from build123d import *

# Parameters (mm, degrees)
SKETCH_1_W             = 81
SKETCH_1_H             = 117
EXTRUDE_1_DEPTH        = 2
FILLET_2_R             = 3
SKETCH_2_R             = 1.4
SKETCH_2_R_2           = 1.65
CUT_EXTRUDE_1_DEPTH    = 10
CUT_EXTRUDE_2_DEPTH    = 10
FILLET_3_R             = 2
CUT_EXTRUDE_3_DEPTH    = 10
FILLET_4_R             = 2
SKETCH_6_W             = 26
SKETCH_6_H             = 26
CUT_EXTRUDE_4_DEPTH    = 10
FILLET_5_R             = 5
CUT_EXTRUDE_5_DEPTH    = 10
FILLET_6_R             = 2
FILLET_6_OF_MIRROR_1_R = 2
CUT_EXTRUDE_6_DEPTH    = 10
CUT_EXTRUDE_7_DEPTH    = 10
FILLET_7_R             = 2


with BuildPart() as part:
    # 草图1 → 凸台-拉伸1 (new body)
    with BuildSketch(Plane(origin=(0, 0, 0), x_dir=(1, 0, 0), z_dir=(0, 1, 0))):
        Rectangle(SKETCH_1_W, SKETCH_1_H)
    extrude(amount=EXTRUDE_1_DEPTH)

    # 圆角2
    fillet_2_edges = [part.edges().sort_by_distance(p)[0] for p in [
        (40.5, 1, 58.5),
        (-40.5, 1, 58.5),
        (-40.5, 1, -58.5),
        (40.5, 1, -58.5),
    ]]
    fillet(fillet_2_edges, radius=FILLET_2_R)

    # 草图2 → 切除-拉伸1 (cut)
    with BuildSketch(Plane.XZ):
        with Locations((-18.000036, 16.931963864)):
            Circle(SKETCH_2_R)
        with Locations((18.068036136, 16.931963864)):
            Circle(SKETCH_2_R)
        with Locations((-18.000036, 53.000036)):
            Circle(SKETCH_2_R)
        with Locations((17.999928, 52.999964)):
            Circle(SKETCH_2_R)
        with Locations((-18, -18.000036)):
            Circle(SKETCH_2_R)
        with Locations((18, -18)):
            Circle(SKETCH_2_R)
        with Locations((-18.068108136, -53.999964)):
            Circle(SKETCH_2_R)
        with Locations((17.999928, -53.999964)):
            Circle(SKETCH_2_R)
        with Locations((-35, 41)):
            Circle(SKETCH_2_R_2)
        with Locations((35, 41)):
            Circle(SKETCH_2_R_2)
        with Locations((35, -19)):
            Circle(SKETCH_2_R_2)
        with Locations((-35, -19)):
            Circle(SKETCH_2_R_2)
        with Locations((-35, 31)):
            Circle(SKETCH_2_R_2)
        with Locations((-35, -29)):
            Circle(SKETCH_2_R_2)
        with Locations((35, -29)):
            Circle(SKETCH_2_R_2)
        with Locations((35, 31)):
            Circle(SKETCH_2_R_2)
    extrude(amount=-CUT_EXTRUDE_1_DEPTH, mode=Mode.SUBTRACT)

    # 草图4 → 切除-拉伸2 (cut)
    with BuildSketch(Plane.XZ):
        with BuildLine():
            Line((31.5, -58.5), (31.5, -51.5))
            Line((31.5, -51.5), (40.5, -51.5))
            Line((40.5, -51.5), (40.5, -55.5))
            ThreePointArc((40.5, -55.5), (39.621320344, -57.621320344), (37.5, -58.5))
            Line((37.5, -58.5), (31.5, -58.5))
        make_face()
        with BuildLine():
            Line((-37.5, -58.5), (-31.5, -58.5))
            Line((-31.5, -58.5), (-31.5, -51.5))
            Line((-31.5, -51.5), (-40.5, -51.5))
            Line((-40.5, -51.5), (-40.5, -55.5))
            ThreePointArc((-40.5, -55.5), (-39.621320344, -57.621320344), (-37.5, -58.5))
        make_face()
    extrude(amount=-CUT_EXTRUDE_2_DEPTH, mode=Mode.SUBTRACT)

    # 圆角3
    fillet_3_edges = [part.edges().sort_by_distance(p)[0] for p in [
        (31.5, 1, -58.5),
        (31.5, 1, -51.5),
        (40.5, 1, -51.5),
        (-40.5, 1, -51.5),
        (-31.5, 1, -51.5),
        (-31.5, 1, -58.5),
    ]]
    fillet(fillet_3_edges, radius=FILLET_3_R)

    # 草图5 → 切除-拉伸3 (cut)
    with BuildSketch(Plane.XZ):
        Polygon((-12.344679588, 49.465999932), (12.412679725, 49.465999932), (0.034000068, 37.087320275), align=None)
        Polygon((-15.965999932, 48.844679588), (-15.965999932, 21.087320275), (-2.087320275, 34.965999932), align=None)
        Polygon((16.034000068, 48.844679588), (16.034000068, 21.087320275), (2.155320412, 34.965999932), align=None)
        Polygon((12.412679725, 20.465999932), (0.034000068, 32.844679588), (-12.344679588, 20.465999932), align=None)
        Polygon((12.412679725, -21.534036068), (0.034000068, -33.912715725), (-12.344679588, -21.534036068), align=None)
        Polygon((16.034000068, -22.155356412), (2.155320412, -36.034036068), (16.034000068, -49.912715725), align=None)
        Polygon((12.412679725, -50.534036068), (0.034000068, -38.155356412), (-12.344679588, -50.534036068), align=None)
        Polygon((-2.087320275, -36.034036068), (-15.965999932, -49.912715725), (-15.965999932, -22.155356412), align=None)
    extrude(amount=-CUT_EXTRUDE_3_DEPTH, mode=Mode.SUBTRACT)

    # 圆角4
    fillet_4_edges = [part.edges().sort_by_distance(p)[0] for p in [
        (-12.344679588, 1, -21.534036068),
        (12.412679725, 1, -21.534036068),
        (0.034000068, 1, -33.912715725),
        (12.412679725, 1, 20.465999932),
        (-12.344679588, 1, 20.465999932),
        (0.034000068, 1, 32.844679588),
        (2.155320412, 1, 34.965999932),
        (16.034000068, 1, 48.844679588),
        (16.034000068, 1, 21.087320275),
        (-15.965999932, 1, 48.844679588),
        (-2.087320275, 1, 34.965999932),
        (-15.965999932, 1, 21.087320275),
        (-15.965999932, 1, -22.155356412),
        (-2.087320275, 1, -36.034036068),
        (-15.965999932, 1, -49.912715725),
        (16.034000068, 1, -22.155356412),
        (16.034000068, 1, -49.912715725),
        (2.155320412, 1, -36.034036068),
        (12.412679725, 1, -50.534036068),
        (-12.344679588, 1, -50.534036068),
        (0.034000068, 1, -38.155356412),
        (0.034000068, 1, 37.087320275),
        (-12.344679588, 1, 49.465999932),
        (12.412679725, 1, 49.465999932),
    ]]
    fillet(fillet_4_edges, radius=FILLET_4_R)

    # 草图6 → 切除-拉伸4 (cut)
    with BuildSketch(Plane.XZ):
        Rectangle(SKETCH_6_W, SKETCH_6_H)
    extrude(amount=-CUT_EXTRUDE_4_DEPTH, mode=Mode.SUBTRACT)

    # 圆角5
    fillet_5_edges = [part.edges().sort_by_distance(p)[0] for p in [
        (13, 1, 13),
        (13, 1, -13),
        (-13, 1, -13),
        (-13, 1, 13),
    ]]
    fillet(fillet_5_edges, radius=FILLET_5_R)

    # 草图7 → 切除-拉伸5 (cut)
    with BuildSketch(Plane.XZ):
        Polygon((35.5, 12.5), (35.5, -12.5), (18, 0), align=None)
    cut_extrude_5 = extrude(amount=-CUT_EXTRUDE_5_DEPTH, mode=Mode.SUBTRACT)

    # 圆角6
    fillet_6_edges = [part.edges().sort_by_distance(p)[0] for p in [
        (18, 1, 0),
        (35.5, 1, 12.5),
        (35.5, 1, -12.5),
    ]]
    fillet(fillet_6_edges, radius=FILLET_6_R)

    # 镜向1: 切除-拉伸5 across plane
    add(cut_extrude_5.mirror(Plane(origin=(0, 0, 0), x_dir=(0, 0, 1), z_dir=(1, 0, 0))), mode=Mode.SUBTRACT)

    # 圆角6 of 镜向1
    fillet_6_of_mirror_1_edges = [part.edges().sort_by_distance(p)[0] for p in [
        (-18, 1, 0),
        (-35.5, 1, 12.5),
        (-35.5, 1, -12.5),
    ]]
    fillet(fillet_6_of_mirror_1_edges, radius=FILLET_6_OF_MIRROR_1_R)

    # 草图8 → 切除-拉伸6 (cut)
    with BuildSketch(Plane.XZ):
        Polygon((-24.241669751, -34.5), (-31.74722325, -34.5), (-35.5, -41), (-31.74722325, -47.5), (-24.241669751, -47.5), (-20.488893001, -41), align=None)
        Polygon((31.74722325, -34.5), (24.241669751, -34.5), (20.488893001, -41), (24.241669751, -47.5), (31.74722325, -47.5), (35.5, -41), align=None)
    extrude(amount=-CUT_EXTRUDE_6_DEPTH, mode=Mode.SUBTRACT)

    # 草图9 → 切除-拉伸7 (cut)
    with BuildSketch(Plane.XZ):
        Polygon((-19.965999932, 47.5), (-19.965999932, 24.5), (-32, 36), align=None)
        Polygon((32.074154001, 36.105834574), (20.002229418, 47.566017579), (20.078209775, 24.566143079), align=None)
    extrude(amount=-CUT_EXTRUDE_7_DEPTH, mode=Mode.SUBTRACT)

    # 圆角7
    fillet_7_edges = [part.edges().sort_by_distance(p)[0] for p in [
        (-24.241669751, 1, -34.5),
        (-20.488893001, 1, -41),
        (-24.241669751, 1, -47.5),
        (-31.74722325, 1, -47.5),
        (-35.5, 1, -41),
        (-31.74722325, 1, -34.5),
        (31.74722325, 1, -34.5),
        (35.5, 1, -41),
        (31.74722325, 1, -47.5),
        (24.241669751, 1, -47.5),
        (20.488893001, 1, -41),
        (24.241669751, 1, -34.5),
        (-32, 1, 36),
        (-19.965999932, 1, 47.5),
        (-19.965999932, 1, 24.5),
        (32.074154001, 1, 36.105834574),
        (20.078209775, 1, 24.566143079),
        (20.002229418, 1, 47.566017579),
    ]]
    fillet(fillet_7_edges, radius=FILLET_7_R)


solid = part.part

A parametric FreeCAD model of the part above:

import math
import FreeCAD as App
import Part
import Sketcher
Q = App.Units.Quantity


def edges_at(feature, points):
    """Names of the edges that pass closest to the given points."""
    edges = feature.Shape.Edges
    near = lambda p: min(range(len(edges)), key=lambda i: edges[i].distToShape(Part.Vertex(*p))[0])
    return sorted({f"Edge{near(p) + 1}" for p in points})


def add_polygon(sketch, points):
    """Adds a closed chain of lines whose ends are joined by coincident constraints."""
    first, n = sketch.GeometryCount, len(points)
    for a, b in zip(points, points[1:] + points[:1]):
        sketch.addGeometry(Part.LineSegment(App.Vector(*a, 0), App.Vector(*b, 0)), False)
    for i in range(n):
        sketch.addConstraint(Sketcher.Constraint("Coincident", first + i, 2, first + (i + 1) % n, 1))

doc = App.newDocument("Part")
body = doc.addObject("PartDesign::Body", "Body")

sketch1 = body.newObject("Sketcher::SketchObject", "Sketch")
sketch1.AttachmentSupport = (doc.getObject("XZ_Plane"), [""])
sketch1.MapMode = "FlatFace"
add_polygon(sketch1, [(-40, -58), (-40, 58), (40, 58), (40, -58)])
sketch1.addConstraint(Sketcher.Constraint("Vertical", 0))
sketch1.addConstraint(Sketcher.Constraint("Horizontal", 1))
sketch1.addConstraint(Sketcher.Constraint("Vertical", 2))
sketch1.addConstraint(Sketcher.Constraint("Horizontal", 3))
sketch1.addConstraint(Sketcher.Constraint("Symmetric", 0, 2, 2, 2, -1, 1))
sketch1.addConstraint(Sketcher.Constraint("DistanceX", 1, 1, 1, 2, Q("81 mm")))
sketch1.addConstraint(Sketcher.Constraint("DistanceY", 0, 1, 0, 2, Q("117 mm")))
pad1 = body.newObject("PartDesign::Pad", "Pad")
pad1.Profile = sketch1
pad1.Length = 2
pad1.Reversed = True
doc.recompute()

fillet = body.newObject("PartDesign::Fillet", "Fillet")
fillet.Base = (pad1, edges_at(pad1, [
    (40.5, 1, 58.5),
    (-40.5, 1, 58.5),
    (-40.5, 1, -58.5),
    (40.5, 1, -58.5),
]))
fillet.Radius = 3

sketch2 = body.newObject("Sketcher::SketchObject", "Sketch001")
sketch2.AttachmentSupport = (doc.getObject("XZ_Plane"), [""])
sketch2.MapMode = "FlatFace"
sketch2.addGeometry(Part.Circle(App.Vector(-18.000036, 16.931964, 0), App.Vector(0, 0, 1), 1.4), False)
sketch2.addGeometry(Part.Circle(App.Vector(18.068036, 16.931964, 0), App.Vector(0, 0, 1), 1.4), False)
sketch2.addGeometry(Part.Circle(App.Vector(-18.000036, 53.000036, 0), App.Vector(0, 0, 1), 1.4), False)
sketch2.addGeometry(Part.Circle(App.Vector(17.999928, 52.999964, 0), App.Vector(0, 0, 1), 1.4), False)
sketch2.addGeometry(Part.Circle(App.Vector(-18, -18.000036, 0), App.Vector(0, 0, 1), 1.4), False)
sketch2.addGeometry(Part.Circle(App.Vector(18, -18, 0), App.Vector(0, 0, 1), 1.4), False)
sketch2.addGeometry(Part.Circle(App.Vector(-18.068108, -53.999964, 0), App.Vector(0, 0, 1), 1.4), False)
sketch2.addGeometry(Part.Circle(App.Vector(17.999928, -53.999964, 0), App.Vector(0, 0, 1), 1.4), False)
sketch2.addGeometry(Part.Circle(App.Vector(-35, 41, 0), App.Vector(0, 0, 1), 1.65), False)
sketch2.addGeometry(Part.Circle(App.Vector(35, 41, 0), App.Vector(0, 0, 1), 1.65), False)
sketch2.addGeometry(Part.Circle(App.Vector(35, -19, 0), App.Vector(0, 0, 1), 1.65), False)
sketch2.addGeometry(Part.Circle(App.Vector(-35, -19, 0), App.Vector(0, 0, 1), 1.65), False)
sketch2.addGeometry(Part.Circle(App.Vector(-35, 31, 0), App.Vector(0, 0, 1), 1.65), False)
sketch2.addGeometry(Part.Circle(App.Vector(-35, -29, 0), App.Vector(0, 0, 1), 1.65), False)
sketch2.addGeometry(Part.Circle(App.Vector(35, -29, 0), App.Vector(0, 0, 1), 1.65), False)
sketch2.addGeometry(Part.Circle(App.Vector(35, 31, 0), App.Vector(0, 0, 1), 1.65), False)
sketch2.addConstraint(Sketcher.Constraint("Equal", 0, 1))
sketch2.addConstraint(Sketcher.Constraint("Equal", 1, 2))
sketch2.addConstraint(Sketcher.Constraint("Equal", 2, 3))
sketch2.addConstraint(Sketcher.Constraint("Equal", 3, 4))
sketch2.addConstraint(Sketcher.Constraint("Equal", 4, 5))
sketch2.addConstraint(Sketcher.Constraint("Equal", 5, 6))
sketch2.addConstraint(Sketcher.Constraint("Equal", 6, 7))
sketch2.addConstraint(Sketcher.Constraint("Equal", 8, 9))
sketch2.addConstraint(Sketcher.Constraint("Equal", 9, 10))
sketch2.addConstraint(Sketcher.Constraint("Equal", 10, 11))
sketch2.addConstraint(Sketcher.Constraint("Equal", 11, 12))
sketch2.addConstraint(Sketcher.Constraint("Equal", 12, 13))
sketch2.addConstraint(Sketcher.Constraint("Equal", 13, 14))
sketch2.addConstraint(Sketcher.Constraint("Equal", 14, 15))
sketch2.addConstraint(Sketcher.Constraint("Symmetric", 8, 3, 9, 3, -2))
sketch2.addConstraint(Sketcher.Constraint("Symmetric", 10, 3, 11, 3, -2))
sketch2.addConstraint(Sketcher.Constraint("Symmetric", 13, 3, 14, 3, -2))
sketch2.addConstraint(Sketcher.Constraint("Symmetric", 12, 3, 15, 3, -2))
sketch2.addConstraint(Sketcher.Constraint("Horizontal", 0, 3, 1, 3))
sketch2.addConstraint(Sketcher.Constraint("Horizontal", 6, 3, 7, 3))
sketch2.addConstraint(Sketcher.Constraint("Vertical", 0, 3, 2, 3))
sketch2.addConstraint(Sketcher.Constraint("Vertical", 3, 3, 7, 3))
sketch2.addConstraint(Sketcher.Constraint("Vertical", 9, 3, 10, 3))
sketch2.addConstraint(Sketcher.Constraint("Vertical", 11, 3, 12, 3))
sketch2.addConstraint(Sketcher.Constraint("Vertical", 12, 3, 13, 3))
sketch2.addConstraint(Sketcher.Constraint("Diameter", 0, Q("2.8 mm")))
sketch2.addConstraint(Sketcher.Constraint("Diameter", 8, Q("3.3 mm")))
sketch2.addConstraint(Sketcher.Constraint("DistanceX", 4, 3, -1, 1, Q("18 mm")))
sketch2.addConstraint(Sketcher.Constraint("DistanceX", -1, 1, 5, 3, Q("18 mm")))
sketch2.addConstraint(Sketcher.Constraint("DistanceY", 5, 3, -1, 1, Q("18 mm")))
sketch2.addConstraint(Sketcher.Constraint("DistanceX", 8, 3, -1, 1, Q("35 mm")))
sketch2.addConstraint(Sketcher.Constraint("DistanceY", -1, 1, 8, 3, Q("41 mm")))
sketch2.addConstraint(Sketcher.Constraint("DistanceY", 10, 3, -1, 1, Q("19 mm")))
sketch2.addConstraint(Sketcher.Constraint("DistanceY", -1, 1, 12, 3, Q("31 mm")))
sketch2.addConstraint(Sketcher.Constraint("DistanceY", 13, 3, -1, 1, Q("29 mm")))
sketch2.addConstraint(Sketcher.Constraint("DistanceY", 4, 3, 3, 3, Q("71 mm")))
sketch2.addConstraint(Sketcher.Constraint("DistanceY", 6, 3, 2, 3, Q("107 mm")))
sketch2.addConstraint(Sketcher.Constraint("DistanceY", 1, 3, 3, 3, Q("36.068 mm")))
sketch2.addConstraint(Sketcher.Constraint("DistanceX", -1, 1, 3, 3, Q("17.999928 mm")))
sketch2.addConstraint(Sketcher.Constraint("DistanceX", 6, 3, -1, 1, Q("18.068108 mm")))
sketch2.addConstraint(Sketcher.Constraint("DistanceX", 3, 3, 1, 3, Q("0.068108 mm")))
sketch2.addConstraint(Sketcher.Constraint("DistanceX", 0, 3, -1, 1, Q("18.000036 mm")))
sketch2.addConstraint(Sketcher.Constraint("DistanceY", -1, 1, 0, 3, Q("16.931964 mm")))
sketch2.addConstraint(Sketcher.Constraint("DistanceY", -1, 1, 2, 3, Q("53.000036 mm")))
pocket1 = body.newObject("PartDesign::Pocket", "Pocket")
pocket1.Profile = sketch2
pocket1.Length = 10

sketch3 = body.newObject("Sketcher::SketchObject", "Sketch002")
sketch3.AttachmentSupport = (doc.getObject("XZ_Plane"), [""])
sketch3.MapMode = "FlatFace"
sketch3.addGeometry(Part.LineSegment(App.Vector(31.5, -51.5, 0), App.Vector(31.5, -58.5, 0)), False)
sketch3.addGeometry(Part.LineSegment(App.Vector(31.5, -58.5, 0), App.Vector(37.5, -58.5, 0)), False)
sketch3.addGeometry(Part.ArcOfCircle(Part.Circle(App.Vector(37.5, -55.5, 0), App.Vector(0, 0, 1), 3), math.radians(-90), math.radians(0)), False)
sketch3.addGeometry(Part.LineSegment(App.Vector(40.5, -55.5, 0), App.Vector(40.5, -51.5, 0)), False)
sketch3.addGeometry(Part.LineSegment(App.Vector(40.5, -51.5, 0), App.Vector(31.5, -51.5, 0)), False)
sketch3.addGeometry(Part.LineSegment(App.Vector(-37.5, -58.5, 0), App.Vector(-31.5, -58.5, 0)), False)
sketch3.addGeometry(Part.LineSegment(App.Vector(-31.5, -58.5, 0), App.Vector(-31.5, -51.5, 0)), False)
sketch3.addGeometry(Part.LineSegment(App.Vector(-31.5, -51.5, 0), App.Vector(-40.5, -51.5, 0)), False)
sketch3.addGeometry(Part.LineSegment(App.Vector(-40.5, -51.5, 0), App.Vector(-40.5, -55.5, 0)), False)
sketch3.addGeometry(Part.ArcOfCircle(Part.Circle(App.Vector(-37.5, -55.5, 0), App.Vector(0, 0, 1), 3), math.radians(180), math.radians(270)), False)
sketch3.addConstraint(Sketcher.Constraint("Coincident", 0, 2, 1, 1))
sketch3.addConstraint(Sketcher.Constraint("Tangent", 1, 2, 2, 1))
sketch3.addConstraint(Sketcher.Constraint("Tangent", 2, 2, 3, 1))
sketch3.addConstraint(Sketcher.Constraint("Coincident", 3, 2, 4, 1))
sketch3.addConstraint(Sketcher.Constraint("Coincident", 4, 2, 0, 1))
sketch3.addConstraint(Sketcher.Constraint("Coincident", 5, 2, 6, 1))
sketch3.addConstraint(Sketcher.Constraint("Coincident", 6, 2, 7, 1))
sketch3.addConstraint(Sketcher.Constraint("Coincident", 7, 2, 8, 1))
sketch3.addConstraint(Sketcher.Constraint("Tangent", 8, 2, 9, 1))
sketch3.addConstraint(Sketcher.Constraint("Tangent", 9, 2, 5, 1))
sketch3.addConstraint(Sketcher.Constraint("Vertical", 0))
sketch3.addConstraint(Sketcher.Constraint("Horizontal", 1))
sketch3.addConstraint(Sketcher.Constraint("Vertical", 3))
sketch3.addConstraint(Sketcher.Constraint("Horizontal", 4))
sketch3.addConstraint(Sketcher.Constraint("Horizontal", 5))
sketch3.addConstraint(Sketcher.Constraint("Vertical", 6))
sketch3.addConstraint(Sketcher.Constraint("Horizontal", 7))
sketch3.addConstraint(Sketcher.Constraint("Vertical", 8))
sketch3.addConstraint(Sketcher.Constraint("Equal", 2, 9))
sketch3.addConstraint(Sketcher.Constraint("Symmetric", 2, 3, 9, 3, -2))
sketch3.addConstraint(Sketcher.Constraint("Symmetric", 4, 2, 6, 2, -2))
sketch3.addConstraint(Sketcher.Constraint("Radius", 2, Q("3 mm")))
sketch3.addConstraint(Sketcher.Constraint("DistanceX", 1, 1, 1, 2, Q("6 mm")))
sketch3.addConstraint(Sketcher.Constraint("DistanceY", 0, 2, 0, 1, Q("7 mm")))
sketch3.addConstraint(Sketcher.Constraint("DistanceX", 9, 3, 2, 3, Q("75 mm")))
sketch3.addConstraint(Sketcher.Constraint("DistanceY", 2, 3, -1, 1, Q("55.5 mm")))
pocket2 = body.newObject("PartDesign::Pocket", "Pocket001")
pocket2.Profile = sketch3
pocket2.Length = 10
doc.recompute()

fillet2 = body.newObject("PartDesign::Fillet", "Fillet001")
fillet2.Base = (pocket2, edges_at(pocket2, [
    (31.5, 1, -58.5),
    (31.5, 1, -51.5),
    (40.5, 1, -51.5),
    (-40.5, 1, -51.5),
    (-31.5, 1, -51.5),
    (-31.5, 1, -58.5),
]))
fillet2.Radius = 2

sketch4 = body.newObject("Sketcher::SketchObject", "Sketch003")
sketch4.AttachmentSupport = (doc.getObject("XZ_Plane"), [""])
sketch4.MapMode = "FlatFace"
add_polygon(sketch4, [(12, 49), (-12, 49), (0, 37)])
add_polygon(sketch4, [(-16, 49), (-16, 21), (-2, 35)])
add_polygon(sketch4, [(16, 21), (16, 49), (2, 35)])
add_polygon(sketch4, [(12, 20), (0, 33), (-12, 20)])
add_polygon(sketch4, [(0, -34), (12, -22), (-12, -22)])
add_polygon(sketch4, [(16, -22), (2, -36), (16, -50)])
add_polygon(sketch4, [(12, -51), (0, -38), (-12, -51)])
add_polygon(sketch4, [(-16, -50), (-2, -36), (-16, -22)])
sketch4.addConstraint(Sketcher.Constraint("Horizontal", 0))
sketch4.addConstraint(Sketcher.Constraint("Vertical", 3))
sketch4.addConstraint(Sketcher.Constraint("Vertical", 6))
sketch4.addConstraint(Sketcher.Constraint("Horizontal", 11))
sketch4.addConstraint(Sketcher.Constraint("Horizontal", 13))
sketch4.addConstraint(Sketcher.Constraint("Vertical", 17))
sketch4.addConstraint(Sketcher.Constraint("Horizontal", 20))
sketch4.addConstraint(Sketcher.Constraint("Vertical", 23))
sketch4.addConstraint(Sketcher.Constraint("Perpendicular", 1, 2))
sketch4.addConstraint(Sketcher.Constraint("Parallel", 2, 4))
sketch4.addConstraint(Sketcher.Constraint("Perpendicular", 4, 5))
sketch4.addConstraint(Sketcher.Constraint("Perpendicular", 5, 7))
sketch4.addConstraint(Sketcher.Constraint("Perpendicular", 7, 8))
sketch4.addConstraint(Sketcher.Constraint("Parallel", 8, 9))
sketch4.addConstraint(Sketcher.Constraint("Perpendicular", 9, 10))
sketch4.addConstraint(Sketcher.Constraint("Parallel", 10, 12))
sketch4.addConstraint(Sketcher.Constraint("Perpendicular", 12, 14))
sketch4.addConstraint(Sketcher.Constraint("Perpendicular", 14, 15))
sketch4.addConstraint(Sketcher.Constraint("Perpendicular", 15, 16))
sketch4.addConstraint(Sketcher.Constraint("Parallel", 16, 18))
sketch4.addConstraint(Sketcher.Constraint("Perpendicular", 18, 19))
sketch4.addConstraint(Sketcher.Constraint("Parallel", 19, 21))
sketch4.addConstraint(Sketcher.Constraint("Perpendicular", 21, 22))
sketch4.addConstraint(Sketcher.Constraint("Horizontal", 5, 2, 6, 2))
sketch4.addConstraint(Sketcher.Constraint("Horizontal", 4, 2, 7, 2))
sketch4.addConstraint(Sketcher.Constraint("Horizontal", 3, 2, 8, 2))
sketch4.addConstraint(Sketcher.Constraint("Horizontal", 15, 2, 21, 2))
sketch4.addConstraint(Sketcher.Constraint("Horizontal", 17, 2, 22, 2))
sketch4.addConstraint(Sketcher.Constraint("Vertical", 1, 2, 9, 2))
sketch4.addConstraint(Sketcher.Constraint("Vertical", 0, 2, 10, 2))
sketch4.addConstraint(Sketcher.Constraint("Vertical", 11, 2, 12, 2))
sketch4.addConstraint(Sketcher.Constraint("Vertical", 10, 2, 13, 2))
sketch4.addConstraint(Sketcher.Constraint("Vertical", 7, 2, 15, 2))
sketch4.addConstraint(Sketcher.Constraint("Vertical", 8, 2, 16, 2))
sketch4.addConstraint(Sketcher.Constraint("Vertical", 14, 2, 18, 2))
sketch4.addConstraint(Sketcher.Constraint("Vertical", 13, 2, 19, 2))
sketch4.addConstraint(Sketcher.Constraint("Vertical", 4, 2, 21, 2))
sketch4.addConstraint(Sketcher.Constraint("DistanceX", 3, 2, 1, 2, Q("16 mm")))
sketch4.addConstraint(Sketcher.Constraint("DistanceY", 3, 2, 1, 2, Q("16 mm")))
sketch4.addConstraint(Sketcher.Constraint("DistanceX", 1, 2, 6, 2, Q("16 mm")))
sketch4.addConstraint(Sketcher.Constraint("DistanceY", 16, 2, 14, 2, Q("16 mm")))
sketch4.addConstraint(Sketcher.Constraint("DistanceY", 19, 2, 13, 2, Q("29 mm")))
sketch4.addConstraint(Sketcher.Constraint("DistanceY", 18, 2, 22, 2, Q("16 mm")))
sketch4.addConstraint(Sketcher.Constraint("DistanceY", 10, 2, 4, 2, Q("14.5 mm")))
sketch4.addConstraint(Sketcher.Constraint("DistanceY", -1, 1, 0, 2, Q("49.466 mm")))
sketch4.addConstraint(Sketcher.Constraint("DistanceX", -1, 1, 1, 2, Q("0.034 mm")))
sketch4.addConstraint(Sketcher.Constraint("DistanceX", 0, 2, 0, 1, Q("24.757359 mm")))
sketch4.addConstraint(Sketcher.Constraint("DistanceY", 12, 2, -1, 1, Q("21.534036 mm")))
pocket3 = body.newObject("PartDesign::Pocket", "Pocket002")
pocket3.Profile = sketch4
pocket3.Length = 10
doc.recompute()

fillet3 = body.newObject("PartDesign::Fillet", "Fillet002")
fillet3.Base = (pocket3, edges_at(pocket3, [
    (-12.345, 1, -21.534),
    (12.413, 1, -21.534),
    (0.034, 1, -33.913),
    (12.413, 1, 20.466),
    (-12.345, 1, 20.466),
    (0.034, 1, 32.845),
    (2.155, 1, 34.966),
    (16.034, 1, 48.845),
    (16.034, 1, 21.087),
    (-15.966, 1, 48.845),
    (-2.087, 1, 34.966),
    (-15.966, 1, 21.087),
    (-15.966, 1, -22.155),
    (-2.087, 1, -36.034),
    (-15.966, 1, -49.913),
    (16.034, 1, -22.155),
    (16.034, 1, -49.913),
    (2.155, 1, -36.034),
    (12.413, 1, -50.534),
    (-12.345, 1, -50.534),
    (0.034, 1, -38.155),
    (0.034, 1, 37.087),
    (-12.345, 1, 49.466),
    (12.413, 1, 49.466),
]))
fillet3.Radius = 2

sketch5 = body.newObject("Sketcher::SketchObject", "Sketch004")
sketch5.AttachmentSupport = (doc.getObject("XZ_Plane"), [""])
sketch5.MapMode = "FlatFace"
add_polygon(sketch5, [(-13, 13), (-13, -13), (13, -13), (13, 13)])
sketch5.addConstraint(Sketcher.Constraint("Vertical", 0))
sketch5.addConstraint(Sketcher.Constraint("Horizontal", 1))
sketch5.addConstraint(Sketcher.Constraint("Vertical", 2))
sketch5.addConstraint(Sketcher.Constraint("Horizontal", 3))
sketch5.addConstraint(Sketcher.Constraint("Symmetric", 0, 2, 2, 2, -1, 1))
sketch5.addConstraint(Sketcher.Constraint("Equal", 3, 0))
sketch5.addConstraint(Sketcher.Constraint("DistanceX", 1, 1, 1, 2, Q("26 mm")))
pocket4 = body.newObject("PartDesign::Pocket", "Pocket003")
pocket4.Profile = sketch5
pocket4.Length = 10
doc.recompute()

fillet4 = body.newObject("PartDesign::Fillet", "Fillet003")
fillet4.Base = (pocket4, edges_at(pocket4, [
    (13, 1, 13),
    (13, 1, -13),
    (-13, 1, -13),
    (-13, 1, 13),
]))
fillet4.Radius = 5

sketch6 = body.newObject("Sketcher::SketchObject", "Sketch005")
sketch6.AttachmentSupport = (doc.getObject("XZ_Plane"), [""])
sketch6.MapMode = "FlatFace"
add_polygon(sketch6, [(36, -12), (36, 12), (18, 0)])
sketch6.addConstraint(Sketcher.Constraint("Vertical", 0))
sketch6.addConstraint(Sketcher.Constraint("PointOnObject", 1, 2, -1))
sketch6.addConstraint(Sketcher.Constraint("Equal", 1, 2))
sketch6.addConstraint(Sketcher.Constraint("DistanceY", 0, 1, 0, 2, Q("25 mm")))
sketch6.addConstraint(Sketcher.Constraint("DistanceX", -1, 1, 1, 2, Q("18 mm")))
sketch6.addConstraint(Sketcher.Constraint("DistanceX", -1, 1, 0, 2, Q("35.5 mm")))
pocket5 = body.newObject("PartDesign::Pocket", "Pocket004")
pocket5.Profile = sketch6
pocket5.Length = 10
doc.recompute()

fillet5 = body.newObject("PartDesign::Fillet", "Fillet004")
fillet5.Base = (pocket5, edges_at(pocket5, [(18, 1, 0), (35.5, 1, 12.5), (35.5, 1, -12.5)]))
fillet5.Radius = 2
doc.recompute()

mirrored = body.newObject("PartDesign::Mirrored", "Mirrored")
mirrored.Originals = [pocket5]
mirrored.MirrorPlane = (doc.getObject("YZ_Plane"), [""])
body.Tip = mirrored
doc.recompute()

fillet6 = body.newObject("PartDesign::Fillet", "Fillet005")
fillet6.Base = (mirrored, edges_at(mirrored, [(-18, 1, 0), (-35.5, 1, 12.5), (-35.5, 1, -12.5)]))
fillet6.Radius = 2

sketch7 = body.newObject("Sketcher::SketchObject", "Sketch006")
sketch7.AttachmentSupport = (doc.getObject("XZ_Plane"), [""])
sketch7.MapMode = "FlatFace"
add_polygon(sketch7, [(-24, -34), (-32, -34), (-36, -41), (-32, -48), (-24, -48), (-20, -41)])
add_polygon(sketch7, [(32, -34), (24, -34), (20, -41), (24, -48), (32, -48), (36, -41)])
sketch7.addConstraint(Sketcher.Constraint("Horizontal", 0))
sketch7.addConstraint(Sketcher.Constraint("Horizontal", 3))
sketch7.addConstraint(Sketcher.Constraint("Horizontal", 6))
sketch7.addConstraint(Sketcher.Constraint("Horizontal", 9))
sketch7.addConstraint(Sketcher.Constraint("Symmetric", 5, 2, 6, 2, -2))
sketch7.addConstraint(Sketcher.Constraint("Symmetric", 4, 2, 7, 2, -2))
sketch7.addConstraint(Sketcher.Constraint("Symmetric", 3, 2, 8, 2, -2))
sketch7.addConstraint(Sketcher.Constraint("Symmetric", 1, 2, 10, 2, -2))
sketch7.addConstraint(Sketcher.Constraint("Parallel", 1, 4))
sketch7.addConstraint(Sketcher.Constraint("Parallel", 2, 5))
sketch7.addConstraint(Sketcher.Constraint("Parallel", 4, 7))
sketch7.addConstraint(Sketcher.Constraint("Parallel", 7, 10))
sketch7.addConstraint(Sketcher.Constraint("Parallel", 8, 11))
sketch7.addConstraint(Sketcher.Constraint("Horizontal", 1, 2, 4, 2))
sketch7.addConstraint(Sketcher.Constraint("Vertical", 0, 2, 2, 2))
sketch7.addConstraint(Sketcher.Constraint("Angle", 1, Q("-120 deg")))
sketch7.addConstraint(Sketcher.Constraint("DistanceY", 1, 2, -1, 1, Q("41 mm")))
sketch7.addConstraint(Sketcher.Constraint("DistanceY", 2, 2, 0, 2, Q("13 mm")))
sketch7.addConstraint(Sketcher.Constraint("DistanceX", 1, 2, -1, 1, Q("35.5 mm")))
sketch7.addConstraint(Sketcher.Constraint("DistanceX", 0, 2, 0, 1, Q("7.505553 mm")))
pocket6 = body.newObject("PartDesign::Pocket", "Pocket005")
pocket6.Profile = sketch7
pocket6.Length = 10

sketch8 = body.newObject("Sketcher::SketchObject", "Sketch007")
sketch8.AttachmentSupport = (doc.getObject("XZ_Plane"), [""])
sketch8.MapMode = "FlatFace"
add_polygon(sketch8, [(-20, 24), (-20, 48), (-32, 36)])
add_polygon(sketch8, [(32, 36), (20, 48), (20, 25)])
sketch8.addConstraint(Sketcher.Constraint("Vertical", 0))
sketch8.addConstraint(Sketcher.Constraint("Equal", 1, 2))
sketch8.addConstraint(Sketcher.Constraint("Equal", 2, 3))
sketch8.addConstraint(Sketcher.Constraint("Equal", 3, 5))
sketch8.addConstraint(Sketcher.Constraint("DistanceY", 0, 1, 0, 2, Q("23 mm")))
sketch8.addConstraint(Sketcher.Constraint("Distance", 4, Q("23 mm")))
sketch8.addConstraint(Sketcher.Constraint("DistanceX", 1, 2, -1, 1, Q("32 mm")))
sketch8.addConstraint(Sketcher.Constraint("DistanceY", -1, 1, 1, 2, Q("36 mm")))
sketch8.addConstraint(Sketcher.Constraint("DistanceX", 0, 2, -1, 1, Q("19.966 mm")))
sketch8.addConstraint(Sketcher.Constraint("DistanceX", -1, 1, 3, 2, Q("20.002229 mm")))
sketch8.addConstraint(Sketcher.Constraint("DistanceX", -1, 1, 4, 2, Q("20.07821 mm")))
sketch8.addConstraint(Sketcher.Constraint("DistanceY", -1, 1, 3, 2, Q("47.566018 mm")))
pocket7 = body.newObject("PartDesign::Pocket", "Pocket006")
pocket7.Profile = sketch8
pocket7.Length = 10
doc.recompute()

fillet7 = body.newObject("PartDesign::Fillet", "Fillet006")
fillet7.Base = (pocket7, edges_at(pocket7, [
    (-24.242, 1, -34.5),
    (-20.489, 1, -41),
    (-24.242, 1, -47.5),
    (-31.747, 1, -47.5),
    (-35.5, 1, -41),
    (-31.747, 1, -34.5),
    (31.747, 1, -34.5),
    (35.5, 1, -41),
    (31.747, 1, -47.5),
    (24.242, 1, -47.5),
    (20.489, 1, -41),
    (24.242, 1, -34.5),
    (-32, 1, 36),
    (-19.966, 1, 47.5),
    (-19.966, 1, 24.5),
    (32.074, 1, 36.106),
    (20.078, 1, 24.566),
    (20.002, 1, 47.566),
]))
fillet7.Radius = 2

doc.recompute()
